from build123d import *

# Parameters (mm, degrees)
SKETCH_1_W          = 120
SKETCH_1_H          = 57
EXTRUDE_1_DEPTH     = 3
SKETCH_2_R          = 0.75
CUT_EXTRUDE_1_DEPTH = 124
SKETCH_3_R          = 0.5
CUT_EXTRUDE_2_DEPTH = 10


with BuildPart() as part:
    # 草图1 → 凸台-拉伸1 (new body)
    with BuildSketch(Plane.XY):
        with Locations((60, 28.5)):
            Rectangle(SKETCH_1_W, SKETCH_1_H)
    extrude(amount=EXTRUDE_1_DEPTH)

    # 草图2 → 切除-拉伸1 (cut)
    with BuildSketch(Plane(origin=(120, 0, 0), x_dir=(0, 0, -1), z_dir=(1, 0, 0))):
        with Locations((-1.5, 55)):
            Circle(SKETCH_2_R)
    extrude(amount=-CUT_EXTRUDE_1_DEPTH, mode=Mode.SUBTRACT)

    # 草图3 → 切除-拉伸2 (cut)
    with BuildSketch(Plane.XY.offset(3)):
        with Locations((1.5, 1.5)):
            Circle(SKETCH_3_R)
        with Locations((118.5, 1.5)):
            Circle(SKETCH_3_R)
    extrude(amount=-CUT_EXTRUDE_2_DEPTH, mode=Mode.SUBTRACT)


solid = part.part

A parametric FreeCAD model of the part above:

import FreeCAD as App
import Part
import Sketcher

V = App.Vector


def add_polygon(sketch, points):
    """Adds a closed chain of lines whose ends are joined by coincident constraints."""
    first, n = sketch.GeometryCount, len(points)
    for a, b in zip(points, points[1:] + points[:1]):
        sketch.addGeometry(Part.LineSegment(App.Vector(*a, 0), App.Vector(*b, 0)), False)
    for i in range(n):
        sketch.addConstraint(Sketcher.Constraint("Coincident", first + i, 2, first + (i + 1) % n, 1))

doc = App.newDocument("Part")
body = doc.addObject("PartDesign::Body", "Body")

# Sketch on XY plane
sketch1 = body.newObject("Sketcher::SketchObject", "Sketch")
sketch1.AttachmentSupport = (doc.getObject("XY_Plane"), [""])
sketch1.MapMode = "FlatFace"
add_polygon(sketch1, [(0, 57), (0, 0), (120, 0), (120, 57)])  # lines 0-3
sketch1.addConstraint([
    Sketcher.Constraint("Vertical", 0),
    Sketcher.Constraint("Horizontal", 1),
    Sketcher.Constraint("Vertical", 2),
    Sketcher.Constraint("Horizontal", 3),
    Sketcher.Constraint("Coincident", 0, 2, -1, 1),
    Sketcher.Constraint("DistanceX", 1, 1, 1, 2, 120.0),
    Sketcher.Constraint("DistanceY", 0, 2, 0, 1, 57.0),
])
pad1 = body.newObject("PartDesign::Pad", "Pad")
pad1.Profile = sketch1
pad1.Length = 3

# Sketch on YZ plane
sketch2 = body.newObject("Sketcher::SketchObject", "Sketch001")
sketch2.AttachmentSupport = (doc.getObject("YZ_Plane"), [""])
sketch2.MapMode = "FlatFace"
sketch2.AttachmentOffset = App.Placement(V(0, 0, 120), App.Rotation())
sketch2.addGeometry(Part.Circle(V(55, 1.5, 0), V(0, 0, 1), 0.8), False)
sketch2.addConstraint([
    Sketcher.Constraint("Diameter", 0, 1.5),
    Sketcher.Constraint("DistanceX", -1, 1, 0, 3, 55.0),
    Sketcher.Constraint("DistanceY", -1, 1, 0, 3, 1.5),
])
pocket1 = body.newObject("PartDesign::Pocket", "Pocket")
pocket1.Profile = sketch2
pocket1.Length = 124

# Sketch on XY plane
sketch3 = body.newObject("Sketcher::SketchObject", "Sketch002")
sketch3.AttachmentSupport = (doc.getObject("XY_Plane"), [""])
sketch3.MapMode = "FlatFace"
sketch3.AttachmentOffset = App.Placement(V(0, 0, 3), App.Rotation())
sketch3.addGeometry([
    Part.Circle(V(1.5, 1.5, 0), V(0, 0, 1), 0.5),
    Part.Circle(V(118.5, 1.5, 0), V(0, 0, 1), 0.5),
], False)
sketch3.addConstraint([
    Sketcher.Constraint("Equal", 0, 1),
    Sketcher.Constraint("Horizontal", 0, 3, 1, 3),
    Sketcher.Constraint("Diameter", 0, 1.0),
    Sketcher.Constraint("DistanceX", 0, 3, 1, 3, 117.0),
    Sketcher.Constraint("DistanceX", -1, 1, 0, 3, 1.5),
    Sketcher.Constraint("DistanceY", -1, 1, 0, 3, 1.5),
])
pocket2 = body.newObject("PartDesign::Pocket", "Pocket001")
pocket2.Profile = sketch3
pocket2.Length = 10

doc.recompute()
